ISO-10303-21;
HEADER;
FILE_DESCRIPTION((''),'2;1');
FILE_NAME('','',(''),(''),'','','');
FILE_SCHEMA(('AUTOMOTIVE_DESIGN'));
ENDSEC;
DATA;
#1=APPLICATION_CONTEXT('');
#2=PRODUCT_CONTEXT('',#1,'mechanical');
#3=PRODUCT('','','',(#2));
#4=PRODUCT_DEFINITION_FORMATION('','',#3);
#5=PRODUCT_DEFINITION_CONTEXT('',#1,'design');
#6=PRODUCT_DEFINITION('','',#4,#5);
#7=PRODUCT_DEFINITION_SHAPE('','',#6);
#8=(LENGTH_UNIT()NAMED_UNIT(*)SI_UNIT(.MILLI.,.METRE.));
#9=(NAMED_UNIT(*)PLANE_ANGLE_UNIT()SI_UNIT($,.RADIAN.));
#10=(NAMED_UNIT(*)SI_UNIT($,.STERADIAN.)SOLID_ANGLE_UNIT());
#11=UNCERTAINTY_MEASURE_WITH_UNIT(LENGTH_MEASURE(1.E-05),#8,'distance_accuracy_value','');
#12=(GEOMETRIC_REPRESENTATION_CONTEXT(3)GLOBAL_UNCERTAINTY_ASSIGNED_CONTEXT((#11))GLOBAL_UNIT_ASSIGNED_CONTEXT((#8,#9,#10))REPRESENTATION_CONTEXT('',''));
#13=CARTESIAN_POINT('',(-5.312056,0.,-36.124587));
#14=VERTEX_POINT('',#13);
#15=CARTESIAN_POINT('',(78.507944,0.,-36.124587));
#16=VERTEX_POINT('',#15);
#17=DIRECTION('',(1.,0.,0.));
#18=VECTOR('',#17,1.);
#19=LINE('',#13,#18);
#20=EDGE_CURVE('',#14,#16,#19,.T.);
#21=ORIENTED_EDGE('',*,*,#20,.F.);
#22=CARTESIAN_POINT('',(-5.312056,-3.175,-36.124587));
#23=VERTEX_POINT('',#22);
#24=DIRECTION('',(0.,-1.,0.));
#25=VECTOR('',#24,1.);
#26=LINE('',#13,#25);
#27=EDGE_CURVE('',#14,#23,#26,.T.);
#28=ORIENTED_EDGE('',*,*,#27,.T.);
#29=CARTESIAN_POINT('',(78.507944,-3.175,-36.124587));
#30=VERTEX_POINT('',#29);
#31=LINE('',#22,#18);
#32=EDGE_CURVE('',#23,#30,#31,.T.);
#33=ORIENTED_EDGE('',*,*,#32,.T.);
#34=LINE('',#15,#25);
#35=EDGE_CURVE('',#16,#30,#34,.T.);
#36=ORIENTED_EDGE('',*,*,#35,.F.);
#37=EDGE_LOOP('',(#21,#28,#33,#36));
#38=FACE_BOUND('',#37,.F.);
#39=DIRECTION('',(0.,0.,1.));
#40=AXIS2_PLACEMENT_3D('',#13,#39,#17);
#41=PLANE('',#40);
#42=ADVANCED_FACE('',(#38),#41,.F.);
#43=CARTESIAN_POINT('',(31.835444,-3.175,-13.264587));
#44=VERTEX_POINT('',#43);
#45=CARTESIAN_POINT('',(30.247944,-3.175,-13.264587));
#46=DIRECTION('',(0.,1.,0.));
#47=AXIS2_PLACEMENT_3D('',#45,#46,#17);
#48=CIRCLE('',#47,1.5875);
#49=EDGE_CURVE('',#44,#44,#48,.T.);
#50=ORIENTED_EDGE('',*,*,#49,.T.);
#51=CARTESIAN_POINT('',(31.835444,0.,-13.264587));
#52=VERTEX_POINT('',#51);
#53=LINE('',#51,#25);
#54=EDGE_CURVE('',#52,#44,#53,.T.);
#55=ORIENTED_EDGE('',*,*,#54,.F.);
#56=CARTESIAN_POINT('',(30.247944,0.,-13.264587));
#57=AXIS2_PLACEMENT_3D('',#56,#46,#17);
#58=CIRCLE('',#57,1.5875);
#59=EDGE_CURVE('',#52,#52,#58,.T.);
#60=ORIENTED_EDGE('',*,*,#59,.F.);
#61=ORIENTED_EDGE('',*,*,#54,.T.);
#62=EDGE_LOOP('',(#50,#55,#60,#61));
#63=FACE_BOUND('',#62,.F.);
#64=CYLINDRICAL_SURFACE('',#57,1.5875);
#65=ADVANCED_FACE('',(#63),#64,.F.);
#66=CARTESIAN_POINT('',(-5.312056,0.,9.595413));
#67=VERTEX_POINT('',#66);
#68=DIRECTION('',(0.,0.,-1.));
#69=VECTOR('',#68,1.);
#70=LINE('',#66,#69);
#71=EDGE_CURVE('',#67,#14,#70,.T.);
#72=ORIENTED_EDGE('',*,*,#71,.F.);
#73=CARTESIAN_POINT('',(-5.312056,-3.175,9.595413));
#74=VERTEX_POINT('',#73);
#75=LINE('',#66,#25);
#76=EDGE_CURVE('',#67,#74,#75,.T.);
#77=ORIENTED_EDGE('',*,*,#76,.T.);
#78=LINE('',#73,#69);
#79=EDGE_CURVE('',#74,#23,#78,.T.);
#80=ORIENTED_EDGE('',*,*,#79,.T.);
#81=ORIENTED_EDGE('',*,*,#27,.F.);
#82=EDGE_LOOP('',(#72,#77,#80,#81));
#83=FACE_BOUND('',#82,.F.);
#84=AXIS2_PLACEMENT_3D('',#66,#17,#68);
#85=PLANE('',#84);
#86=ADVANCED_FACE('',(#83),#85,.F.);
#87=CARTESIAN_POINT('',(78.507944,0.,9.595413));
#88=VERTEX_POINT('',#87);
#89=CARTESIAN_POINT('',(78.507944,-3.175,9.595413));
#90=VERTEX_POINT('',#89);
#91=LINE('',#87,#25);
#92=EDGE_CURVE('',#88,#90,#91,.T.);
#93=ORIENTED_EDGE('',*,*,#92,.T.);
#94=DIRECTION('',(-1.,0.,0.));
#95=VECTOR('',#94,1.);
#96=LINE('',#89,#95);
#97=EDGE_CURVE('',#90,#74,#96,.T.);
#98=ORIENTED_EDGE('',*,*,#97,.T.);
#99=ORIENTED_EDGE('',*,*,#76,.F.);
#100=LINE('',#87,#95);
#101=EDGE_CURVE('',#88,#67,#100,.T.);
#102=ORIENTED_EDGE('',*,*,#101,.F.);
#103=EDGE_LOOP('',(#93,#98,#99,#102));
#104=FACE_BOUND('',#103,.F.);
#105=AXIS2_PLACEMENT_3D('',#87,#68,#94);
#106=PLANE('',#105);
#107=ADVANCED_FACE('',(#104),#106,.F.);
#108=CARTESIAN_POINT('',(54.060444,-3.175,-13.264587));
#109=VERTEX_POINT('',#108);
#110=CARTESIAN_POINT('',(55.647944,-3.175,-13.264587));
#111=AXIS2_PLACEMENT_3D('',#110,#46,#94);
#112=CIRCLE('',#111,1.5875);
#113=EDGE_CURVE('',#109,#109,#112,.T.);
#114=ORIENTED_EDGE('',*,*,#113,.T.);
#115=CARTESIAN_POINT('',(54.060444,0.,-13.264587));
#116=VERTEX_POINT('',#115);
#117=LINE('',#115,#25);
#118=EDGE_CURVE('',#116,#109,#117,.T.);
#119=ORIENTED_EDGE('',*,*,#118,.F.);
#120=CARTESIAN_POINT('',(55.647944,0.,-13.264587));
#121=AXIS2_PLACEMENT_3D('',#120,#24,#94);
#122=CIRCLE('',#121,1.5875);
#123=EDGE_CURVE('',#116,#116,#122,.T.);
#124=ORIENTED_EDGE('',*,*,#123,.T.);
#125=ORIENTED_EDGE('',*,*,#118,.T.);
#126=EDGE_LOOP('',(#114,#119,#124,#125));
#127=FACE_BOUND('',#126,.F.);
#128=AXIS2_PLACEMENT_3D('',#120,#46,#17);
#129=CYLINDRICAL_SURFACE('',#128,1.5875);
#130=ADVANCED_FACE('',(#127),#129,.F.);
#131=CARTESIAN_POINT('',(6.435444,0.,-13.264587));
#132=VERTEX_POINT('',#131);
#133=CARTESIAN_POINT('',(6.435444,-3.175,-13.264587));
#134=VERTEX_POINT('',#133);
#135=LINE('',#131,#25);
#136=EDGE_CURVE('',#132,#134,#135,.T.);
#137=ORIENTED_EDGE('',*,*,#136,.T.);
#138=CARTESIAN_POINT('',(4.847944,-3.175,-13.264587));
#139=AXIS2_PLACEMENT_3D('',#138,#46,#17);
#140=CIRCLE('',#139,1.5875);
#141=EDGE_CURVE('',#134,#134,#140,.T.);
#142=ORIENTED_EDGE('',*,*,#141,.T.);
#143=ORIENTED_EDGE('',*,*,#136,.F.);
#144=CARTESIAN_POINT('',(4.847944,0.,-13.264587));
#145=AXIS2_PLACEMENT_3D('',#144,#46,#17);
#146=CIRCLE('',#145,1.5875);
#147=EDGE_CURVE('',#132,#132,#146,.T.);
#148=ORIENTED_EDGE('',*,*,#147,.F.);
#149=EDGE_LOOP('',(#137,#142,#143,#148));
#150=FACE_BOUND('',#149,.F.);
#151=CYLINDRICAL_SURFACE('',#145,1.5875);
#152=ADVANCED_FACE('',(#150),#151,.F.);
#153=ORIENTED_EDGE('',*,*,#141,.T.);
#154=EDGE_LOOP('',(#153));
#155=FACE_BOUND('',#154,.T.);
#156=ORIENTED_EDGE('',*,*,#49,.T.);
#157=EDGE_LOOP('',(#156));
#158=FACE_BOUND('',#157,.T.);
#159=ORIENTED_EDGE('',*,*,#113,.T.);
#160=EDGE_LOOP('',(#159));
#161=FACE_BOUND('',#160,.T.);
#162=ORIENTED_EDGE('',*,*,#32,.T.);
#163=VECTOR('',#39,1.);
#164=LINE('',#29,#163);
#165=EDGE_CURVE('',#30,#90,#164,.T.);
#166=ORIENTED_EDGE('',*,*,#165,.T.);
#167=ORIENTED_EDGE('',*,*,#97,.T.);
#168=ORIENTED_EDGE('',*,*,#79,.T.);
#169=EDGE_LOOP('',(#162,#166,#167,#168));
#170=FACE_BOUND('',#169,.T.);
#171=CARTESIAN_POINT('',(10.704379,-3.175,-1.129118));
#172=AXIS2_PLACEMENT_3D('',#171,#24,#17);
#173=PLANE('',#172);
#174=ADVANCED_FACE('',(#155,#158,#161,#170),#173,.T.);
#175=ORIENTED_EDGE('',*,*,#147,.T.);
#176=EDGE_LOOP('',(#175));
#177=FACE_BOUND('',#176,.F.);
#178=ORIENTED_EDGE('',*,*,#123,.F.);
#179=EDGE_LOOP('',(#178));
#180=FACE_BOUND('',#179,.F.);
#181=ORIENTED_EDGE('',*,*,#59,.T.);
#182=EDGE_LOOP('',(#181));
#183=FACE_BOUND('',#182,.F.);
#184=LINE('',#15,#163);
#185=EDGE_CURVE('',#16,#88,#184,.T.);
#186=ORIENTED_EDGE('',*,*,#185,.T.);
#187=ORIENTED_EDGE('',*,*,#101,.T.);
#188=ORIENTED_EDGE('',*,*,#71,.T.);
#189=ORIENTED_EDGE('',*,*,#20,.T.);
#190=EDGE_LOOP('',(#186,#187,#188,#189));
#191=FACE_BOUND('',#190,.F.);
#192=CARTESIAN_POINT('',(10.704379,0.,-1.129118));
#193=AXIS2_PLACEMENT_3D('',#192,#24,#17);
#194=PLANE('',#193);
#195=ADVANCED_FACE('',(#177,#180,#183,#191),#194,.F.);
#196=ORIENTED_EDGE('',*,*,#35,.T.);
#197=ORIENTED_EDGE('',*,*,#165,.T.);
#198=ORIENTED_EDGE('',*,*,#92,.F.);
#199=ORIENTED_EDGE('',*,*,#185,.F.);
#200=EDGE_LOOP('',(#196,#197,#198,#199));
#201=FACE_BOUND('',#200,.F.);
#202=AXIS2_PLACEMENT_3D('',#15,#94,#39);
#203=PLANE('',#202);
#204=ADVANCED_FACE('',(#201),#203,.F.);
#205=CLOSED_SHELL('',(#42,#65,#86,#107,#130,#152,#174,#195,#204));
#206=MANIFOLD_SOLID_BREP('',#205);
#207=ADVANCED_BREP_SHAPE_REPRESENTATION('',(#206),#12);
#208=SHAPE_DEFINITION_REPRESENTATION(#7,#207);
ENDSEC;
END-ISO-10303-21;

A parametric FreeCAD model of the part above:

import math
import FreeCAD as App
import Part
import Sketcher

V = App.Vector
Q = App.Units.Quantity

doc = App.newDocument("Part")
body = doc.addObject("PartDesign::Body", "Body")

# Sketch on XZ plane
sketch1 = body.newObject("Sketcher::SketchObject", "Sketch")
sketch1.AttachmentSupport = (doc.getObject("XZ_Plane"), [""])
sketch1.MapMode = "FlatFace"
sketch1.addGeometry(Part.LineSegment(V(78.5, -36.1, 0), V(78.5, 9.6, 0)), False)
sketch1.addGeometry(Part.LineSegment(V(78.5, 9.6, 0), V(-5.3, 9.6, 0)), False)
sketch1.addGeometry(Part.LineSegment(V(-5.3, 9.6, 0), V(-5.3, -36.1, 0)), False)
sketch1.addGeometry(Part.LineSegment(V(-5.3, -36.1, 0), V(78.5, -36.1, 0)), False)
sketch1.addGeometry(Part.LineSegment(V(30.2, 5.8, 0), V(74.7, 5.8, 0)), False)
sketch1.addGeometry(Part.LineSegment(V(74.7, 5.8, 0), V(74.7, -13.3, 0)), False)
sketch1.addGeometry(Part.LineSegment(V(74.7, -13.3, 0), V(57.2, -13.3, 0)), False)
sketch1.addGeometry(Part.ArcOfCircle(Part.Circle(V(55.6, -13.3, 0), V(0, 0, 1), 1.6), math.radians(180), math.radians(360)), False)
sketch1.addGeometry(Part.LineSegment(V(54.1, -13.3, 0), V(49.3, -13.3, 0)), False)
sketch1.addGeometry(Part.ArcOfCircle(Part.Circle(V(30.2, -13.3, 0), V(0, 0, 1), 19.1), math.radians(0), math.radians(48)), False)
sketch1.addGeometry(Part.ArcOfCircle(Part.Circle(V(30.2, -13.3, 0), V(0, 0, 1), 19.1), math.radians(48), math.radians(90)), False)
sketch1.addGeometry(Part.ArcOfCircle(Part.Circle(V(30.2, -13.3, 0), V(0, 0, 1), 19.1), math.radians(90), math.radians(180)), False)
sketch1.addGeometry(Part.ArcOfCircle(Part.Circle(V(30.2, -13.3, 0), V(0, 0, 1), 19.1), math.radians(180), math.radians(270)), False)
sketch1.addGeometry(Part.LineSegment(V(30.2, -32.3, 0), V(-1.5, -32.3, 0)), False)
sketch1.addGeometry(Part.LineSegment(V(-1.5, -32.3, 0), V(-1.5, 5.8, 0)), False)
sketch1.addGeometry(Part.LineSegment(V(-1.5, 5.8, 0), V(30.2, 5.8, 0)), False)
sketch1.addGeometry(Part.LineSegment(V(74.7, -13.3, 0), V(74.7, -32.3, 0)), False)
sketch1.addGeometry(Part.LineSegment(V(74.7, -32.3, 0), V(55.6, -32.3, 0)), False)
sketch1.addGeometry(Part.ArcOfCircle(Part.Circle(V(55.6, -13.3, 0), V(0, 0, 1), 19.1), math.radians(-90), math.radians(0)), False)
sketch1.addGeometry(Part.Circle(V(30.2, -13.3, 0), V(0, 0, 1), 1.6), False)
sketch1.addConstraint(Sketcher.Constraint("Coincident", 0, 2, 1, 1))
sketch1.addConstraint(Sketcher.Constraint("Coincident", 1, 2, 2, 1))
sketch1.addConstraint(Sketcher.Constraint("Coincident", 2, 2, 3, 1))
sketch1.addConstraint(Sketcher.Constraint("Coincident", 3, 2, 0, 1))
sketch1.addConstraint(Sketcher.Constraint("Coincident", 4, 2, 5, 1))
sketch1.addConstraint(Sketcher.Constraint("Coincident", 5, 2, 6, 1))
sketch1.addConstraint(Sketcher.Constraint("Coincident", 6, 2, 7, 2))
sketch1.addConstraint(Sketcher.Constraint("Coincident", 7, 1, 8, 1))
sketch1.addConstraint(Sketcher.Constraint("Coincident", 8, 2, 9, 1))
sketch1.addConstraint(Sketcher.Constraint("Tangent", 9, 2, 10, 1))
sketch1.addConstraint(Sketcher.Constraint("Tangent", 10, 2, 4, 1))
sketch1.addConstraint(Sketcher.Constraint("Tangent", 11, 2, 12, 1))
sketch1.addConstraint(Sketcher.Constraint("Tangent", 12, 2, 13, 1))
sketch1.addConstraint(Sketcher.Constraint("Coincident", 13, 2, 14, 1))
sketch1.addConstraint(Sketcher.Constraint("Coincident", 14, 2, 15, 1))
sketch1.addConstraint(Sketcher.Constraint("Tangent", 15, 2, 11, 1))
sketch1.addConstraint(Sketcher.Constraint("Coincident", 16, 2, 17, 1))
sketch1.addConstraint(Sketcher.Constraint("Tangent", 17, 2, 18, 1))
sketch1.addConstraint(Sketcher.Constraint("Tangent", 18, 2, 16, 1))
sketch1.addConstraint(Sketcher.Constraint("Vertical", 0))
sketch1.addConstraint(Sketcher.Constraint("Horizontal", 1))
sketch1.addConstraint(Sketcher.Constraint("Vertical", 2))
sketch1.addConstraint(Sketcher.Constraint("Horizontal", 3))
sketch1.addConstraint(Sketcher.Constraint("Horizontal", 4))
sketch1.addConstraint(Sketcher.Constraint("Vertical", 5))
sketch1.addConstraint(Sketcher.Constraint("Horizontal", 6))
sketch1.addConstraint(Sketcher.Constraint("Horizontal", 8))
sketch1.addConstraint(Sketcher.Constraint("Horizontal", 13))
sketch1.addConstraint(Sketcher.Constraint("Vertical", 14))
sketch1.addConstraint(Sketcher.Constraint("Horizontal", 15))
sketch1.addConstraint(Sketcher.Constraint("Vertical", 16))
sketch1.addConstraint(Sketcher.Constraint("Horizontal", 17))
sketch1.addConstraint(Sketcher.Constraint("Coincident", 11, 3, 9, 3))
sketch1.addConstraint(Sketcher.Constraint("Coincident", 18, 3, 7, 3))
sketch1.addConstraint(Sketcher.Constraint("Coincident", 19, 3, 9, 3))
sketch1.addConstraint(Sketcher.Constraint("Coincident", 15, 2, 10, 2))
sketch1.addConstraint(Sketcher.Constraint("Coincident", 18, 2, 5, 2))
sketch1.addConstraint(Sketcher.Constraint("Equal", 11, 12))
sketch1.addConstraint(Sketcher.Constraint("Equal", 12, 18))
sketch1.addConstraint(Sketcher.Constraint("Equal", 7, 19))
sketch1.addConstraint(Sketcher.Constraint("Horizontal", 7, 3, 9, 3))
sketch1.addConstraint(Sketcher.Constraint("Horizontal", 6, 2, 7, 1))
sketch1.addConstraint(Sketcher.Constraint("Horizontal", 8, 2, 11, 2))
sketch1.addConstraint(Sketcher.Constraint("Radius", 9, Q("0.75 in")))
sketch1.addConstraint(Sketcher.Constraint("Diameter", 19, Q("0.125 in")))
sketch1.addConstraint(Sketcher.Constraint("DistanceX", 1, 2, 1, 1, Q("3.3 in")))
sketch1.addConstraint(Sketcher.Constraint("DistanceY", 0, 1, 0, 2, Q("1.8 in")))
sketch1.addConstraint(Sketcher.Constraint("DistanceX", 9, 3, 7, 3, Q("1 in")))
sketch1.addConstraint(Sketcher.Constraint("DistanceX", 13, 2, 13, 1, Q("1.25 in")))
sketch1.addConstraint(Sketcher.Constraint("DistanceX", 7, 3, 0, 2, Q("0.9 in")))
sketch1.addConstraint(Sketcher.Constraint("DistanceY", 7, 3, 0, 2, Q("0.9 in")))
sketch1.addConstraint(Sketcher.Constraint("DistanceX", 9, 2, 7, 3, Q("0.5 in")))
sketch1.addConstraint(Sketcher.Constraint("DistanceX", -1, 1, 7, 3, Q("55.647944 mm")))
sketch1.addConstraint(Sketcher.Constraint("DistanceY", 7, 3, -1, 1, Q("13.264587 mm")))
pad1 = body.newObject("PartDesign::Pad", "Pad")
pad1.Profile = sketch1
pad1.Length = Q("0.125 in")

# Sketch on XZ plane
sketch2 = body.newObject("Sketcher::SketchObject", "Sketch001")
sketch2.AttachmentSupport = (doc.getObject("XZ_Plane"), [""])
sketch2.MapMode = "FlatFace"
sketch2.addGeometry(Part.LineSegment(V(-1.5, 5.8, 0), V(-1.5, -32.3, 0)), False)
sketch2.addGeometry(Part.LineSegment(V(-1.5, -32.3, 0), V(30.2, -32.3, 0)), False)
sketch2.addGeometry(Part.ArcOfCircle(Part.Circle(V(30.2, -13.3, 0), V(0, 0, 1), 19.1), math.radians(180), math.radians(270)), False)
sketch2.addGeometry(Part.ArcOfCircle(Part.Circle(V(30.2, -13.3, 0), V(0, 0, 1), 19.1), math.radians(90), math.radians(180)), False)
sketch2.addGeometry(Part.LineSegment(V(30.2, 5.8, 0), V(-1.5, 5.8, 0)), False)
sketch2.addGeometry(Part.Circle(V(4.8, -13.3, 0), V(0, 0, 1), 1.6), False)
sketch2.addGeometry(Part.ArcOfCircle(Part.Circle(V(30.2, -13.3, 0), V(0, 0, 1), 19.1), math.radians(48), math.radians(90)), False)
sketch2.addGeometry(Part.ArcOfCircle(Part.Circle(V(30.2, -13.3, 0), V(0, 0, 1), 19.1), math.radians(0), math.radians(48)), False)
sketch2.addGeometry(Part.LineSegment(V(49.3, -13.3, 0), V(54.1, -13.3, 0)), False)
sketch2.addGeometry(Part.ArcOfCircle(Part.Circle(V(55.6, -13.3, 0), V(0, 0, 1), 1.6), math.radians(0), math.radians(180)), False)
sketch2.addGeometry(Part.LineSegment(V(57.2, -13.3, 0), V(74.7, -13.3, 0)), False)
sketch2.addGeometry(Part.LineSegment(V(74.7, -13.3, 0), V(74.7, 5.8, 0)), False)
sketch2.addGeometry(Part.LineSegment(V(74.7, 5.8, 0), V(30.2, 5.8, 0)), False)
sketch2.addGeometry(Part.ArcOfCircle(Part.Circle(V(55.6, -13.3, 0), V(0, 0, 1), 19.1), math.radians(-90), math.radians(0)), False)
sketch2.addGeometry(Part.LineSegment(V(55.6, -32.3, 0), V(74.7, -32.3, 0)), False)
sketch2.addGeometry(Part.LineSegment(V(74.7, -32.3, 0), V(74.7, -13.3, 0)), False)
sketch2.addConstraint(Sketcher.Constraint("Coincident", 0, 2, 1, 1))
sketch2.addConstraint(Sketcher.Constraint("Tangent", 1, 2, 2, 2))
sketch2.addConstraint(Sketcher.Constraint("Tangent", 2, 1, 3, 2))
sketch2.addConstraint(Sketcher.Constraint("Tangent", 3, 1, 4, 1))
sketch2.addConstraint(Sketcher.Constraint("Coincident", 4, 2, 0, 1))
sketch2.addConstraint(Sketcher.Constraint("Tangent", 6, 1, 7, 2))
sketch2.addConstraint(Sketcher.Constraint("Coincident", 7, 1, 8, 1))
sketch2.addConstraint(Sketcher.Constraint("Coincident", 8, 2, 9, 2))
sketch2.addConstraint(Sketcher.Constraint("Coincident", 9, 1, 10, 1))
sketch2.addConstraint(Sketcher.Constraint("Coincident", 10, 2, 11, 1))
sketch2.addConstraint(Sketcher.Constraint("Coincident", 11, 2, 12, 1))
sketch2.addConstraint(Sketcher.Constraint("Tangent", 12, 2, 6, 2))
sketch2.addConstraint(Sketcher.Constraint("Tangent", 13, 1, 14, 1))
sketch2.addConstraint(Sketcher.Constraint("Coincident", 14, 2, 15, 1))
sketch2.addConstraint(Sketcher.Constraint("Tangent", 15, 2, 13, 2))
sketch2.addConstraint(Sketcher.Constraint("Vertical", 0))
sketch2.addConstraint(Sketcher.Constraint("Horizontal", 1))
sketch2.addConstraint(Sketcher.Constraint("Horizontal", 4))
sketch2.addConstraint(Sketcher.Constraint("Horizontal", 8))
sketch2.addConstraint(Sketcher.Constraint("Horizontal", 10))
sketch2.addConstraint(Sketcher.Constraint("Vertical", 11))
sketch2.addConstraint(Sketcher.Constraint("Horizontal", 12))
sketch2.addConstraint(Sketcher.Constraint("Horizontal", 14))
sketch2.addConstraint(Sketcher.Constraint("Vertical", 15))
sketch2.addConstraint(Sketcher.Constraint("Coincident", 6, 3, 2, 3))
sketch2.addConstraint(Sketcher.Constraint("Coincident", 13, 3, 9, 3))
sketch2.addConstraint(Sketcher.Constraint("Coincident", 12, 2, 3, 1))
sketch2.addConstraint(Sketcher.Constraint("Coincident", 15, 2, 10, 2))
sketch2.addConstraint(Sketcher.Constraint("Equal", 6, 7))
sketch2.addConstraint(Sketcher.Constraint("Equal", 5, 9))
sketch2.addConstraint(Sketcher.Constraint("Equal", 7, 13))
sketch2.addConstraint(Sketcher.Constraint("Horizontal", 3, 3, 5, 3))
sketch2.addConstraint(Sketcher.Constraint("Horizontal", 7, 3, 9, 3))
sketch2.addConstraint(Sketcher.Constraint("Horizontal", 13, 3, 2, 1))
sketch2.addConstraint(Sketcher.Constraint("Horizontal", 2, 1, 7, 1))
sketch2.addConstraint(Sketcher.Constraint("Radius", 2, Q("0.75 in")))
sketch2.addConstraint(Sketcher.Constraint("Diameter", 5, Q("0.125 in")))
sketch2.addConstraint(Sketcher.Constraint("DistanceX", 5, 3, 2, 3, Q("1 in")))
sketch2.addConstraint(Sketcher.Constraint("DistanceX", 2, 3, 9, 3, Q("1 in")))
sketch2.addConstraint(Sketcher.Constraint("DistanceX", 1, 1, 1, 2, Q("1.25 in")))
sketch2.addConstraint(Sketcher.Constraint("DistanceX", 3, 1, 6, 1, Q("0.5 in")))
sketch2.addConstraint(Sketcher.Constraint("DistanceX", -1, 1, 2, 3, Q("30.247944 mm")))
sketch2.addConstraint(Sketcher.Constraint("DistanceY", 2, 3, -1, 1, Q("13.264587 mm")))
pad2 = body.newObject("PartDesign::Pad", "Pad001")
pad2.Profile = sketch2
pad2.Length = Q("0.125 in")

doc.recompute()
